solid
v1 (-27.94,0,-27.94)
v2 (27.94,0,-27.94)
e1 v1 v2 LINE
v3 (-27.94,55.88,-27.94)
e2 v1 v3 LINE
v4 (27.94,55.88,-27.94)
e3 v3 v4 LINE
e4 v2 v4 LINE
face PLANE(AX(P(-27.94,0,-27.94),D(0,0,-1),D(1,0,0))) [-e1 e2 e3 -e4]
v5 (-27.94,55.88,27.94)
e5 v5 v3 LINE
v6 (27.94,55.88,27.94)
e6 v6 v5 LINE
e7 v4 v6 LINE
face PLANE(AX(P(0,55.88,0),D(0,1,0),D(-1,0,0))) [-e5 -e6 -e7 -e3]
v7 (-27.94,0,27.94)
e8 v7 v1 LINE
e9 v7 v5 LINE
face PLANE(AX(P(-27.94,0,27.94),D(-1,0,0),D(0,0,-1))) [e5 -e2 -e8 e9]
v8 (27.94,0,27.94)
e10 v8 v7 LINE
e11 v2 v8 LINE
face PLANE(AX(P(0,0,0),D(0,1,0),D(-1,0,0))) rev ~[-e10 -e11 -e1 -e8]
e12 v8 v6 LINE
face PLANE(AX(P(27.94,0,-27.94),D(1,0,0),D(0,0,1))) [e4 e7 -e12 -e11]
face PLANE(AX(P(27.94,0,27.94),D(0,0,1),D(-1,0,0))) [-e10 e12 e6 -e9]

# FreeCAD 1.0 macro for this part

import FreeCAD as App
import Part
import Sketcher

V = App.Vector
Q = App.Units.Quantity


def add_polygon(sketch, points):
    """Adds a closed chain of lines whose ends are joined by coincident constraints."""
    first, n = sketch.GeometryCount, len(points)
    for a, b in zip(points, points[1:] + points[:1]):
        sketch.addGeometry(Part.LineSegment(App.Vector(*a, 0), App.Vector(*b, 0)), False)
    for i in range(n):
        sketch.addConstraint(Sketcher.Constraint("Coincident", first + i, 2, first + (i + 1) % n, 1))

doc = App.newDocument("Part")
body = doc.addObject("PartDesign::Body", "Body")

sketch1 = body.newObject("Sketcher::SketchObject", "Sketch")
sketch1.AttachmentSupport = (doc.getObject("XZ_Plane"), [""])
sketch1.MapMode = "FlatFace"
add_polygon(sketch1, [(-28, 28), (28, 28), (28, -28), (-28, -28)])
sketch1.addConstraint([
    Sketcher.Constraint("Horizontal", 0),
    Sketcher.Constraint("Vertical", 1),
    Sketcher.Constraint("Horizontal", 2),
    Sketcher.Constraint("Vertical", 3),
    Sketcher.Constraint("Symmetric", 0, 2, 2, 2, -1, 1),
    Sketcher.Constraint("Equal", 2, 1),
    Sketcher.Constraint("DistanceX", 0, 1, 0, 2, Q("2.2 in")),
])
pad1 = body.newObject("PartDesign::Pad", "Pad")
pad1.Profile = sketch1
pad1.Length = Q("2.2 in")
pad1.Reversed = True

doc.recompute()
